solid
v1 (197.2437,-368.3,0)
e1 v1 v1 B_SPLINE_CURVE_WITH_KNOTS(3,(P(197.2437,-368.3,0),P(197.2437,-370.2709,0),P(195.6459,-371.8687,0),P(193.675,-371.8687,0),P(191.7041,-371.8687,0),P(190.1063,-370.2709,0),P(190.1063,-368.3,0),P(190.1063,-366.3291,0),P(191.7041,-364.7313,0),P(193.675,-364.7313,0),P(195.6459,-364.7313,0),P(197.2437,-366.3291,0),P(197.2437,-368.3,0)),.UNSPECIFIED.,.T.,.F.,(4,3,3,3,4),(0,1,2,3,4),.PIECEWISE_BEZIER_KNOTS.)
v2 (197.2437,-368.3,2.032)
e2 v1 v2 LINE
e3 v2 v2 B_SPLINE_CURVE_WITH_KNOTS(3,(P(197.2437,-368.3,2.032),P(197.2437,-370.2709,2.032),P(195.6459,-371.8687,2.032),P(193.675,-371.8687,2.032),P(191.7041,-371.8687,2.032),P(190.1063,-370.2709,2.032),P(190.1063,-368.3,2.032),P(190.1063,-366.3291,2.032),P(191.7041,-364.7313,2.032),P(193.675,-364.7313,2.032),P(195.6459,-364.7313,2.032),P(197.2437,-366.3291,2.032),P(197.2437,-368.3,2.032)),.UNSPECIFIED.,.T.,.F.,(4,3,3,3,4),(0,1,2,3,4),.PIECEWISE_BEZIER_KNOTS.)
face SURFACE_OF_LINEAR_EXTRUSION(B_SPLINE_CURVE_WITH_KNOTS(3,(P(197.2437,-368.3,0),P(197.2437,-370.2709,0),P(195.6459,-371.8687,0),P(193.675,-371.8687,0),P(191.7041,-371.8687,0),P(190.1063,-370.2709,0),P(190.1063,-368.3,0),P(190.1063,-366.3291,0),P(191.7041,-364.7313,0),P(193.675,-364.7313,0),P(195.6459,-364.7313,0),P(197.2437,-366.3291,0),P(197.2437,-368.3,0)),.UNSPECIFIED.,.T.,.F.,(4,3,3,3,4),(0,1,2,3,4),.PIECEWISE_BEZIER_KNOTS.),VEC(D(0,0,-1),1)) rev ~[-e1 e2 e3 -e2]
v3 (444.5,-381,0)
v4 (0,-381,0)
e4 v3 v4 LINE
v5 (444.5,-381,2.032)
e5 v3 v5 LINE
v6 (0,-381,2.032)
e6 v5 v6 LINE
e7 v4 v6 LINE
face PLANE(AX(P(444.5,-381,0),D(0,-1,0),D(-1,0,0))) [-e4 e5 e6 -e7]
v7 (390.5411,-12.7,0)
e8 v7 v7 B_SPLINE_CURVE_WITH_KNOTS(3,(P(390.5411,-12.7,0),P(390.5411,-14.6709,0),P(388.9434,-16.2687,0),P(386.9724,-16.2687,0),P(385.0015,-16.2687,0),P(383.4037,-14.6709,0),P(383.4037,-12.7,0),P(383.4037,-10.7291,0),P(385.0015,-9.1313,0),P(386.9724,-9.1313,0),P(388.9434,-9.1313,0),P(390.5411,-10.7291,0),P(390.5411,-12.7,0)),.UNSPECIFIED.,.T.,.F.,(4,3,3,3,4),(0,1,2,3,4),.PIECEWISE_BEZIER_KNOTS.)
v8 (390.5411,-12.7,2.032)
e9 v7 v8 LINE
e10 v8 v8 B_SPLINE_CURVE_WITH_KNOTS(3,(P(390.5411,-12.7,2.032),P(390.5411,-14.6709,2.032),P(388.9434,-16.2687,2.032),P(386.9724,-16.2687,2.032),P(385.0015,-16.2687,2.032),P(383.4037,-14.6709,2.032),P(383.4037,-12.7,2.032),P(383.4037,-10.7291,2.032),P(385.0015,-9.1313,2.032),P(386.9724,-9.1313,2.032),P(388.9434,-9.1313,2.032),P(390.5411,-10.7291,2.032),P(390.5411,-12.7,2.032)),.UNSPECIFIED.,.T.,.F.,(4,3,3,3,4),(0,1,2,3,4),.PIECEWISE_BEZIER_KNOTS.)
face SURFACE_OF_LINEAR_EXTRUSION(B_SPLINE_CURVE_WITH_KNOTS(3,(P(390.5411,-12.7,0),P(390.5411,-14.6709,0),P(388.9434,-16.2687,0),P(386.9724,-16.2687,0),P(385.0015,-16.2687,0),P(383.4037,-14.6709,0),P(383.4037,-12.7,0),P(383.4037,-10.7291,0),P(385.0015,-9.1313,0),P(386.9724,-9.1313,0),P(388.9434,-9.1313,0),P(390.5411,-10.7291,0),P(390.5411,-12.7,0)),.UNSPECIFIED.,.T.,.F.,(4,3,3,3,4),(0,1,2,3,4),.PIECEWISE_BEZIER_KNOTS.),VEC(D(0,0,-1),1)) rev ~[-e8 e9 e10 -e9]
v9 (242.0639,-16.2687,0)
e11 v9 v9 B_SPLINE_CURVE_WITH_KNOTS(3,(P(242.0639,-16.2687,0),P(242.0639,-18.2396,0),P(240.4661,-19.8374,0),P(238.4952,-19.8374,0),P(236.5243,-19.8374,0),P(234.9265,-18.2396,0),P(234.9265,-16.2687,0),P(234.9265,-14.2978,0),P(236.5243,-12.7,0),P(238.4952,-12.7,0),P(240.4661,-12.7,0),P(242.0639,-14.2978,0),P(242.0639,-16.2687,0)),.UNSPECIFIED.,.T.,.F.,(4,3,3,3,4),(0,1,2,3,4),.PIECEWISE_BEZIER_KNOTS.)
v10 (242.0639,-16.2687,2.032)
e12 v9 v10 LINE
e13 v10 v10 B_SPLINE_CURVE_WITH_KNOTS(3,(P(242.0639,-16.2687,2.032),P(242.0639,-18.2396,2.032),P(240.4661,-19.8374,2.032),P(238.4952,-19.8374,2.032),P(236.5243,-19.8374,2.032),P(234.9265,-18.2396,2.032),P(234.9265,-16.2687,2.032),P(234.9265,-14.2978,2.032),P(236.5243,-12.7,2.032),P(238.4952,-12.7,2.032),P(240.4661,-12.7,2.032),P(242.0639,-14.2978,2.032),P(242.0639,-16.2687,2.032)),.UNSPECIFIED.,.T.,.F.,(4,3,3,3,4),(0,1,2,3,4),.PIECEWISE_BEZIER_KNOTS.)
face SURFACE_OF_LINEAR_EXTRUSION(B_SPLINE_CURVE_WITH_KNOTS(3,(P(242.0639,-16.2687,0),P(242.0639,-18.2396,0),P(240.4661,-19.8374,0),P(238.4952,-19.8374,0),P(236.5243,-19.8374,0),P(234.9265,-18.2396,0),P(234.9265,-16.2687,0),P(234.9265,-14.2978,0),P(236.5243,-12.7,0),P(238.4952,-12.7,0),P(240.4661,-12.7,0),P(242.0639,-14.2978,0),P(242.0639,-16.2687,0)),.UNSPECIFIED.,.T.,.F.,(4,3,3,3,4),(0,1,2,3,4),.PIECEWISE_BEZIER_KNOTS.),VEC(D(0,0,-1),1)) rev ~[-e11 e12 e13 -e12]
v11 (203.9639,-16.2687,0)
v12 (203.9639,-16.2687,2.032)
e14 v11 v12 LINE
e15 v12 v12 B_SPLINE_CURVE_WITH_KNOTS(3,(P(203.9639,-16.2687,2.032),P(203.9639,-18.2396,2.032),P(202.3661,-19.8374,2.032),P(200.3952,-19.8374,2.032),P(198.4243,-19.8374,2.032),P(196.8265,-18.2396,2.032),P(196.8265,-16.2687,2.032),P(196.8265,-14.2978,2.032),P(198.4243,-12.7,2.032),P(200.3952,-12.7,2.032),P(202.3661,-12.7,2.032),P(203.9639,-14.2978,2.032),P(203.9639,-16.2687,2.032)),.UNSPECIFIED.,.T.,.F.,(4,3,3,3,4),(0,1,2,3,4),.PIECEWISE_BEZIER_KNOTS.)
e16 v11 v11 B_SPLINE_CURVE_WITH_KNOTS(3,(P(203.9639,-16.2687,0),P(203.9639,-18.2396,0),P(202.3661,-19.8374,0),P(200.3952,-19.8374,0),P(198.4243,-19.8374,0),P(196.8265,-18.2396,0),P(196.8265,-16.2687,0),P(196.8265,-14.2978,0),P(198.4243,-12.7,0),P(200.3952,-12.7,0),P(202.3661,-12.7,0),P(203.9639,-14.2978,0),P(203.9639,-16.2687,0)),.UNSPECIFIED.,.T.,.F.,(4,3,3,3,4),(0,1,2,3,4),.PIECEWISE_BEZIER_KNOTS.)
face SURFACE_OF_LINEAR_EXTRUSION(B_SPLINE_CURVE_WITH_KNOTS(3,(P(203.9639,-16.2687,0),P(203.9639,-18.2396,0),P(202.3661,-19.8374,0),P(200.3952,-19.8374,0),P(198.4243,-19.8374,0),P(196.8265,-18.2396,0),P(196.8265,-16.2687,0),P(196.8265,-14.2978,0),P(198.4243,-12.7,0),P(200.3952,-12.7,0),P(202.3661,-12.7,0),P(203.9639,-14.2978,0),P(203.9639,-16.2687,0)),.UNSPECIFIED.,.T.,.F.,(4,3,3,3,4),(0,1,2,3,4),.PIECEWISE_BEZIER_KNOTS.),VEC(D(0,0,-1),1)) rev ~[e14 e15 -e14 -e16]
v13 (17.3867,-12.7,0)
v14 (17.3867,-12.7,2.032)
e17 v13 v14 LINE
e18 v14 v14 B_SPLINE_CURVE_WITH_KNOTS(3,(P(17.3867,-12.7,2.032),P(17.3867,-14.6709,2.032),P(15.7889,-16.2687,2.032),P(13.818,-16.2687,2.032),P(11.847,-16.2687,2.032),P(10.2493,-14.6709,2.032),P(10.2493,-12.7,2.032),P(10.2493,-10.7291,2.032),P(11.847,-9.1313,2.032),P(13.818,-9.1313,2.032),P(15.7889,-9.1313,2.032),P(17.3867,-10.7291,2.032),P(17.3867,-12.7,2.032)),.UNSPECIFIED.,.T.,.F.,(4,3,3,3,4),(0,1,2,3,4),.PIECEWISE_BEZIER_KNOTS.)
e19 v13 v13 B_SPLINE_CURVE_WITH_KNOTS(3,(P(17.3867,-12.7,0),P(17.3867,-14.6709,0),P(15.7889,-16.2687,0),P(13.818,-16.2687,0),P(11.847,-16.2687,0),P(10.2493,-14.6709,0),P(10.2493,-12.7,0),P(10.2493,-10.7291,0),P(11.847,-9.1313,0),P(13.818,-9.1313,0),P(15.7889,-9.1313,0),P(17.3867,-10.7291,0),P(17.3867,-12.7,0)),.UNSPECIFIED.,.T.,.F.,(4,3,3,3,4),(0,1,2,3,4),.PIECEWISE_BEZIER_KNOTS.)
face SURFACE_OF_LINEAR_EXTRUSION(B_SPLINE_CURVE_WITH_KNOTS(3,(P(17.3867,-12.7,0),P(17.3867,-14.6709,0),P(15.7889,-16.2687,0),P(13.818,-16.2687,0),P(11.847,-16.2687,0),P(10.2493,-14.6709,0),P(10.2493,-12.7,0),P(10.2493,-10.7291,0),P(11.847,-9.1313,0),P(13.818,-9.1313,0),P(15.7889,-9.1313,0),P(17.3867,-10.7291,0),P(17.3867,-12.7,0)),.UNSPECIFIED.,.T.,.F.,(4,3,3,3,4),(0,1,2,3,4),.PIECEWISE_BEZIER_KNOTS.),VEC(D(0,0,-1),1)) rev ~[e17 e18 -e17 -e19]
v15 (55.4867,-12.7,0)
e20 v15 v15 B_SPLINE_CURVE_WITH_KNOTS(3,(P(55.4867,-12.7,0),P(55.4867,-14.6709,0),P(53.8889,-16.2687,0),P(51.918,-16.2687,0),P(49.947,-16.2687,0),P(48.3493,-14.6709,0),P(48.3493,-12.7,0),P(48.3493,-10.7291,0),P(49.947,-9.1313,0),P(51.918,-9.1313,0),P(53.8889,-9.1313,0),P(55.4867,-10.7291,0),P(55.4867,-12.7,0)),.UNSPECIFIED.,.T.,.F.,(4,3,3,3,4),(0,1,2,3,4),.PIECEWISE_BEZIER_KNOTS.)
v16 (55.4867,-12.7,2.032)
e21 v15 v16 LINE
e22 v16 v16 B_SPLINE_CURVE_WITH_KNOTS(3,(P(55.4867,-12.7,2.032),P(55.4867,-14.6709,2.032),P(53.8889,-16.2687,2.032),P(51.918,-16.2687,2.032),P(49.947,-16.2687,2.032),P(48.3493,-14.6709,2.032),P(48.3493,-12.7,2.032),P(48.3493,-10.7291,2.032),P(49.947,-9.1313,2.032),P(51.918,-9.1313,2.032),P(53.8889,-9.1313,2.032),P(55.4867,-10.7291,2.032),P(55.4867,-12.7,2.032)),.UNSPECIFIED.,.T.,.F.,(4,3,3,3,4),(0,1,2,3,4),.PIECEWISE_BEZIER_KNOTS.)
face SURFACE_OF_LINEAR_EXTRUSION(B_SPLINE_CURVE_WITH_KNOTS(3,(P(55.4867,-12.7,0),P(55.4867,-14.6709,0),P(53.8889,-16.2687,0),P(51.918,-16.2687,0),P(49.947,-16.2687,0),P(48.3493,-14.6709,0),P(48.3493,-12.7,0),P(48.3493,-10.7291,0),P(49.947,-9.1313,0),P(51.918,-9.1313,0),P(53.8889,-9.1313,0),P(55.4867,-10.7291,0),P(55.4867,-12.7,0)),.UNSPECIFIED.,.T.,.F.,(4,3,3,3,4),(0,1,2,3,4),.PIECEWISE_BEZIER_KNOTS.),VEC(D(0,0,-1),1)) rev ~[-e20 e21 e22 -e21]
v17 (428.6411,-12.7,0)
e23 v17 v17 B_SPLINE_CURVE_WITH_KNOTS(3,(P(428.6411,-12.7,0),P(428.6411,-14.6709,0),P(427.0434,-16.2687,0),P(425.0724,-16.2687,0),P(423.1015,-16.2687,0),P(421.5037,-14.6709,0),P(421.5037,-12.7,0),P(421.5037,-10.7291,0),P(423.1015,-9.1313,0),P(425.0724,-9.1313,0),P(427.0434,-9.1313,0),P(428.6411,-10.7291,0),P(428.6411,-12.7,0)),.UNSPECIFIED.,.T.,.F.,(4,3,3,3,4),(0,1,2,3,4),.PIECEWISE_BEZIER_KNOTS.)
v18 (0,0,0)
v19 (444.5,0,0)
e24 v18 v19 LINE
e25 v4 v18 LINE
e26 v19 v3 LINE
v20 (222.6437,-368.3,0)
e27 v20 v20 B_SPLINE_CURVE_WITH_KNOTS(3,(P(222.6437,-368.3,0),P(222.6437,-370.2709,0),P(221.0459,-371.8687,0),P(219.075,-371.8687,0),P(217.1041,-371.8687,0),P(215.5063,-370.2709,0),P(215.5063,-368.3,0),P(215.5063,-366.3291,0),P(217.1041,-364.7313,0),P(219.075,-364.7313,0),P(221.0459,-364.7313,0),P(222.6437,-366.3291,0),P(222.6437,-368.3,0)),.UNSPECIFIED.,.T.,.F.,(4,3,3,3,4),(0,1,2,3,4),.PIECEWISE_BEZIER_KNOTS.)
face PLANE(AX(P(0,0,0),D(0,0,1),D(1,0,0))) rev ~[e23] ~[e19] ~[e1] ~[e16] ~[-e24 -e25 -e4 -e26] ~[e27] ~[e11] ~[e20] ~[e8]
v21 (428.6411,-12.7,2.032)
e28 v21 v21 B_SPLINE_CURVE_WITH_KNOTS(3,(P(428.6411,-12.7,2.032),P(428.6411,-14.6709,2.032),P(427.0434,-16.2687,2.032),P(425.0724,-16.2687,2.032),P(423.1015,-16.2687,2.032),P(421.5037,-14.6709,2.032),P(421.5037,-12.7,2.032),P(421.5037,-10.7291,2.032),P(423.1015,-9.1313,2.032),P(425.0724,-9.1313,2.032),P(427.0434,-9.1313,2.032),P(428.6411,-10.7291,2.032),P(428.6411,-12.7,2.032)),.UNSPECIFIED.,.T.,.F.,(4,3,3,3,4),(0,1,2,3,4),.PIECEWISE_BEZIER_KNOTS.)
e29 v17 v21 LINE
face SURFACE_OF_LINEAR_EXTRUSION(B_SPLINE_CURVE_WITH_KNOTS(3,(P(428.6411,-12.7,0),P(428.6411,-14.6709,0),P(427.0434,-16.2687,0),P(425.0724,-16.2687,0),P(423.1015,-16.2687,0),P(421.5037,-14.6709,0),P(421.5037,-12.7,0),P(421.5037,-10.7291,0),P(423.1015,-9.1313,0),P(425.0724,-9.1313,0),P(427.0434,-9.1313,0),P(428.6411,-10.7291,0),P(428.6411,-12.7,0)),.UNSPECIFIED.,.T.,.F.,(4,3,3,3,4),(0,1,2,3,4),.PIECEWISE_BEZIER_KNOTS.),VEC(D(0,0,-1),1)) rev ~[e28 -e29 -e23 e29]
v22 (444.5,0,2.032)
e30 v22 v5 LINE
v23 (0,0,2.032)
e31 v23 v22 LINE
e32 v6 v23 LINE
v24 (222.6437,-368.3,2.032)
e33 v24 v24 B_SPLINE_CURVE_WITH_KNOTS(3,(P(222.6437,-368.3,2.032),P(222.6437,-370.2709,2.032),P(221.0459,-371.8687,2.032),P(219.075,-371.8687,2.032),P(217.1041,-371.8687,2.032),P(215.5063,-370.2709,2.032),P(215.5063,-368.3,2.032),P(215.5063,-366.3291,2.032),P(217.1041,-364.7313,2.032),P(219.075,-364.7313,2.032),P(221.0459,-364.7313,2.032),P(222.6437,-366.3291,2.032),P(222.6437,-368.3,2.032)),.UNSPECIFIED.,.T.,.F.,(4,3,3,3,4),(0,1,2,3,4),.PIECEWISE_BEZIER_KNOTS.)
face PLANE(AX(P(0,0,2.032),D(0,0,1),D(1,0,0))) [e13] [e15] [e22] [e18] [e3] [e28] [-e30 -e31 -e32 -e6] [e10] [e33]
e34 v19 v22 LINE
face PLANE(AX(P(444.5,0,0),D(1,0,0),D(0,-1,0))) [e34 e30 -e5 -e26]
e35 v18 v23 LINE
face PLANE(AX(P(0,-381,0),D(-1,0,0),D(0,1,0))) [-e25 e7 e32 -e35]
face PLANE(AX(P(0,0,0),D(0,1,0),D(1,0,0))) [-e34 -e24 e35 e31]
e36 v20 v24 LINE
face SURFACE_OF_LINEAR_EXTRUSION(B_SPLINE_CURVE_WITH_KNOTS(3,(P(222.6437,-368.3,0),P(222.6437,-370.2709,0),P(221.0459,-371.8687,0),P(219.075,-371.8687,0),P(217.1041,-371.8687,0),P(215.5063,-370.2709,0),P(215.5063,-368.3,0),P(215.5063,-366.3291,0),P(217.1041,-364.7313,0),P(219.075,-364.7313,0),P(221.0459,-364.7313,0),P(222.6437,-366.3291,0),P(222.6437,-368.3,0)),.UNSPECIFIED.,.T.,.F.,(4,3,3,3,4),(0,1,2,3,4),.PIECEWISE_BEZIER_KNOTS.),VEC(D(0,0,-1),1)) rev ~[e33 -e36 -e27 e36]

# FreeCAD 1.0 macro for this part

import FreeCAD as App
import Part
import Sketcher
Q = App.Units.Quantity

doc = App.newDocument("Part")
params = doc.addObject("Spreadsheet::Sheet", "Params")
for row, (alias, value) in enumerate([
    ("sketch1_height", "15 in"),
    ("sketch1_width", "17.5 in"),
    ("pad1_length", "0.08 in"),
], start=1):
    params.set(f"A{row}", alias)
    params.set(f"B{row}", "=" + value)
    params.setAlias(f"B{row}", alias)

body = doc.addObject("PartDesign::Body", "Body")

sketch1 = doc.addObject("Sketcher::SketchObject", "Sketch")
body.addObject(sketch1)
sketch1.AttachmentSupport = (doc.XY_Plane, [""])
sketch1.MapMode = "FlatFace"
sketch1.addGeometry([
    Part.LineSegment(App.Vector(0, 0, 0), App.Vector(0, -381, 0)),
    Part.LineSegment(App.Vector(0, -381, 0), App.Vector(444.5, -381, 0)),
    Part.LineSegment(App.Vector(444.5, -381, 0), App.Vector(444.5, 0, 0)),
    Part.LineSegment(App.Vector(444.5, 0, 0), App.Vector(0, 0, 0)),
    Part.BSplineCurve([App.Vector(197.2437, -368.3, 0), App.Vector(197.2437, -370.2709, 0), App.Vector(195.6459, -371.8687, 0), App.Vector(193.675, -371.8687, 0), App.Vector(191.7041, -371.8687, 0), App.Vector(190.1063, -370.2709, 0), App.Vector(190.1063, -368.3, 0), App.Vector(190.1063, -366.3291, 0), App.Vector(191.7041, -364.7313, 0), App.Vector(193.675, -364.7313, 0), App.Vector(195.6459, -364.7313, 0), App.Vector(197.2437, -366.3291, 0), App.Vector(197.2437, -368.3, 0)], [4, 3, 3, 3, 4], [0, 1, 2, 3, 4], False, 3, [1, 1, 1, 1, 1, 1, 1, 1, 1, 1, 1, 1, 1], False),
    Part.BSplineCurve([App.Vector(222.6437, -368.3, 0), App.Vector(222.6437, -370.2709, 0), App.Vector(221.0459, -371.8687, 0), App.Vector(219.075, -371.8687, 0), App.Vector(217.1041, -371.8687, 0), App.Vector(215.5063, -370.2709, 0), App.Vector(215.5063, -368.3, 0), App.Vector(215.5063, -366.3291, 0), App.Vector(217.1041, -364.7313, 0), App.Vector(219.075, -364.7313, 0), App.Vector(221.0459, -364.7313, 0), App.Vector(222.6437, -366.3291, 0), App.Vector(222.6437, -368.3, 0)], [4, 3, 3, 3, 4], [0, 1, 2, 3, 4], False, 3, [1, 1, 1, 1, 1, 1, 1, 1, 1, 1, 1, 1, 1], False),
    Part.BSplineCurve([App.Vector(17.3867, -12.7, 0), App.Vector(17.3867, -14.6709, 0), App.Vector(15.7889, -16.2687, 0), App.Vector(13.818, -16.2687, 0), App.Vector(11.847, -16.2687, 0), App.Vector(10.2493, -14.6709, 0), App.Vector(10.2493, -12.7, 0), App.Vector(10.2493, -10.7291, 0), App.Vector(11.847, -9.1313, 0), App.Vector(13.818, -9.1313, 0), App.Vector(15.7889, -9.1313, 0), App.Vector(17.3867, -10.7291, 0), App.Vector(17.3867, -12.7, 0)], [4, 3, 3, 3, 4], [0, 1, 2, 3, 4], False, 3, [1, 1, 1, 1, 1, 1, 1, 1, 1, 1, 1, 1, 1], False),
    Part.BSplineCurve([App.Vector(55.4867, -12.7, 0), App.Vector(55.4867, -14.6709, 0), App.Vector(53.8889, -16.2687, 0), App.Vector(51.918, -16.2687, 0), App.Vector(49.947, -16.2687, 0), App.Vector(48.3493, -14.6709, 0), App.Vector(48.3493, -12.7, 0), App.Vector(48.3493, -10.7291, 0), App.Vector(49.947, -9.1313, 0), App.Vector(51.918, -9.1313, 0), App.Vector(53.8889, -9.1313, 0), App.Vector(55.4867, -10.7291, 0), App.Vector(55.4867, -12.7, 0)], [4, 3, 3, 3, 4], [0, 1, 2, 3, 4], False, 3, [1, 1, 1, 1, 1, 1, 1, 1, 1, 1, 1, 1, 1], False),
    Part.BSplineCurve([App.Vector(203.9639, -16.2687, 0), App.Vector(203.9639, -18.2396, 0), App.Vector(202.3661, -19.8374, 0), App.Vector(200.3952, -19.8374, 0), App.Vector(198.4243, -19.8374, 0), App.Vector(196.8265, -18.2396, 0), App.Vector(196.8265, -16.2687, 0), App.Vector(196.8265, -14.2978, 0), App.Vector(198.4243, -12.7, 0), App.Vector(200.3952, -12.7, 0), App.Vector(202.3661, -12.7, 0), App.Vector(203.9639, -14.2978, 0), App.Vector(203.9639, -16.2687, 0)], [4, 3, 3, 3, 4], [0, 1, 2, 3, 4], False, 3, [1, 1, 1, 1, 1, 1, 1, 1, 1, 1, 1, 1, 1], False),
    Part.BSplineCurve([App.Vector(242.0639, -16.2687, 0), App.Vector(242.0639, -18.2396, 0), App.Vector(240.4661, -19.8374, 0), App.Vector(238.4952, -19.8374, 0), App.Vector(236.5243, -19.8374, 0), App.Vector(234.9265, -18.2396, 0), App.Vector(234.9265, -16.2687, 0), App.Vector(234.9265, -14.2978, 0), App.Vector(236.5243, -12.7, 0), App.Vector(238.4952, -12.7, 0), App.Vector(240.4661, -12.7, 0), App.Vector(242.0639, -14.2978, 0), App.Vector(242.0639, -16.2687, 0)], [4, 3, 3, 3, 4], [0, 1, 2, 3, 4], False, 3, [1, 1, 1, 1, 1, 1, 1, 1, 1, 1, 1, 1, 1], False),
    Part.BSplineCurve([App.Vector(390.5411, -12.7, 0), App.Vector(390.5411, -14.6709, 0), App.Vector(388.9434, -16.2687, 0), App.Vector(386.9724, -16.2687, 0), App.Vector(385.0015, -16.2687, 0), App.Vector(383.4037, -14.6709, 0), App.Vector(383.4037, -12.7, 0), App.Vector(383.4037, -10.7291, 0), App.Vector(385.0015, -9.1313, 0), App.Vector(386.9724, -9.1313, 0), App.Vector(388.9434, -9.1313, 0), App.Vector(390.5411, -10.7291, 0), App.Vector(390.5411, -12.7, 0)], [4, 3, 3, 3, 4], [0, 1, 2, 3, 4], False, 3, [1, 1, 1, 1, 1, 1, 1, 1, 1, 1, 1, 1, 1], False),
    Part.BSplineCurve([App.Vector(428.6411, -12.7, 0), App.Vector(428.6411, -14.6709, 0), App.Vector(427.0434, -16.2687, 0), App.Vector(425.0724, -16.2687, 0), App.Vector(423.1015, -16.2687, 0), App.Vector(421.5037, -14.6709, 0), App.Vector(421.5037, -12.7, 0), App.Vector(421.5037, -10.7291, 0), App.Vector(423.1015, -9.1313, 0), App.Vector(425.0724, -9.1313, 0), App.Vector(427.0434, -9.1313, 0), App.Vector(428.6411, -10.7291, 0), App.Vector(428.6411, -12.7, 0)], [4, 3, 3, 3, 4], [0, 1, 2, 3, 4], False, 3, [1, 1, 1, 1, 1, 1, 1, 1, 1, 1, 1, 1, 1], False),
], False)
sketch1.addConstraint([
    Sketcher.Constraint("Block", 4),
    Sketcher.Constraint("Block", 5),
    Sketcher.Constraint("Block", 6),
    Sketcher.Constraint("Block", 7),
    Sketcher.Constraint("Block", 8),
    Sketcher.Constraint("Block", 9),
    Sketcher.Constraint("Block", 10),
    Sketcher.Constraint("Block", 11),
    Sketcher.Constraint("Coincident", 0, 2, 1, 1),
    Sketcher.Constraint("Coincident", 1, 2, 2, 1),
    Sketcher.Constraint("Coincident", 2, 2, 3, 1),
    Sketcher.Constraint("Coincident", 3, 2, 0, 1),
    Sketcher.Constraint("Vertical", 0),
    Sketcher.Constraint("Horizontal", 1),
    Sketcher.Constraint("Vertical", 2),
    Sketcher.Constraint("Horizontal", 3),
    Sketcher.Constraint("Coincident", 3, 2, -1, 1),
    Sketcher.Constraint("DistanceY", 0, 2, 0, 1, Q("15 in")),
    Sketcher.Constraint("DistanceX", 1, 1, 1, 2, Q("17.5 in")),
])
sketch1.setExpression("Constraints[17]", "Params.sketch1_height")
sketch1.setExpression("Constraints[18]", "Params.sketch1_width")
pad1 = doc.addObject("PartDesign::Pad", "Pad")
body.addObject(pad1)
pad1.Profile = sketch1
pad1.setExpression("Length", "Params.pad1_length")

doc.recompute()
